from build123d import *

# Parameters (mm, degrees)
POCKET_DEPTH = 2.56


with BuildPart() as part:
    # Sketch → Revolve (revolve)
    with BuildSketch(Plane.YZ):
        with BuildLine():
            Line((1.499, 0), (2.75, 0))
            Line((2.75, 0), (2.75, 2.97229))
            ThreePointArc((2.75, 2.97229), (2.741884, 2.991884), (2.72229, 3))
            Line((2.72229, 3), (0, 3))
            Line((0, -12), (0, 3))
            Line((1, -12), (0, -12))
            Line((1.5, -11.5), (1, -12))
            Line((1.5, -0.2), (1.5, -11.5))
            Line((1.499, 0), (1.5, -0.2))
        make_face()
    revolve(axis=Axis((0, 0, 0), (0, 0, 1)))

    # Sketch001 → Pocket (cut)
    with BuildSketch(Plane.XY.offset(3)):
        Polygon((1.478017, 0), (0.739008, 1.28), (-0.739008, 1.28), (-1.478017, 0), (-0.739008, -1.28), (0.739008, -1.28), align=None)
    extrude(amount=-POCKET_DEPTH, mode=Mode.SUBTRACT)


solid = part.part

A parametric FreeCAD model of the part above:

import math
import FreeCAD as App
import Part
import Sketcher
Q = App.Units.Quantity

doc = App.newDocument("Part")
params = doc.addObject("Spreadsheet::Sheet", "Params")
for row, (alias, value) in enumerate([
    ("sketch1_width", "1 mm"),
    ("sketch1_height", "15 mm"),
    ("sketch1_height2", "11.3 mm"),
    ("revolution_angle", "360 deg"),
    ("pocket1_length", "2.56 mm"),
], start=1):
    params.set(f"A{row}", alias)
    params.set(f"B{row}", "=" + value)
    params.setAlias(f"B{row}", alias)

body = doc.addObject("PartDesign::Body", "Body")

sketch1 = body.newObject("Sketcher::SketchObject", "Sketch")
sketch1.AttachmentSupport = (doc.getObject("YZ_Plane"), [""])
sketch1.MapMode = "FlatFace"
sketch1.addGeometry(Part.LineSegment(App.Vector(1.499, 0, 0), App.Vector(2.75, 0, 0)), False)
sketch1.addGeometry(Part.LineSegment(App.Vector(2.75, 0, 0), App.Vector(2.75, 2.972, 0)), False)
sketch1.addGeometry(Part.ArcOfCircle(Part.Circle(App.Vector(2.722, 2.972, 0), App.Vector(0, 0, 1), 0.028), math.radians(0), math.radians(90)), False)
sketch1.addGeometry(Part.LineSegment(App.Vector(2.722, 3, 0), App.Vector(0, 3, 0)), False)
sketch1.addGeometry(Part.LineSegment(App.Vector(0, 3, 0), App.Vector(0, -12, 0)), False)
sketch1.addGeometry(Part.LineSegment(App.Vector(0, -12, 0), App.Vector(1, -12, 0)), False)
sketch1.addGeometry(Part.LineSegment(App.Vector(1, -12, 0), App.Vector(1.5, -11.5, 0)), False)
sketch1.addGeometry(Part.LineSegment(App.Vector(1.5, -11.5, 0), App.Vector(1.5, -0.2, 0)), False)
sketch1.addGeometry(Part.LineSegment(App.Vector(1.5, -0.2, 0), App.Vector(1.499, 0, 0)), False)
sketch1.addConstraint(Sketcher.Constraint("Coincident", 0, 2, 1, 1))
sketch1.addConstraint(Sketcher.Constraint("Coincident", 1, 2, 2, 1))
sketch1.addConstraint(Sketcher.Constraint("Coincident", 2, 2, 3, 1))
sketch1.addConstraint(Sketcher.Constraint("Coincident", 3, 2, 4, 1))
sketch1.addConstraint(Sketcher.Constraint("Coincident", 4, 2, 5, 1))
sketch1.addConstraint(Sketcher.Constraint("Coincident", 5, 2, 6, 1))
sketch1.addConstraint(Sketcher.Constraint("Coincident", 6, 2, 7, 1))
sketch1.addConstraint(Sketcher.Constraint("Coincident", 7, 2, 8, 1))
sketch1.addConstraint(Sketcher.Constraint("Coincident", 8, 2, 0, 1))
sketch1.addConstraint(Sketcher.Constraint("Horizontal", 0))
sketch1.addConstraint(Sketcher.Constraint("Vertical", 1))
sketch1.addConstraint(Sketcher.Constraint("Horizontal", 3))
sketch1.addConstraint(Sketcher.Constraint("Vertical", 4))
sketch1.addConstraint(Sketcher.Constraint("Horizontal", 5))
sketch1.addConstraint(Sketcher.Constraint("Vertical", 7))
sketch1.addConstraint(Sketcher.Constraint("PointOnObject", 0, 2, -1))
sketch1.addConstraint(Sketcher.Constraint("PointOnObject", 3, 2, -2))
sketch1.addConstraint(Sketcher.Constraint("Horizontal", 2, 3, 1, 2))
sketch1.addConstraint(Sketcher.Constraint("DistanceX", 5, 1, 5, 2, 1.0))
sketch1.addConstraint(Sketcher.Constraint("DistanceY", 4, 2, 4, 1, 15.0))
sketch1.addConstraint(Sketcher.Constraint("Angle", 6, Q("45 deg")))
sketch1.addConstraint(Sketcher.Constraint("DistanceY", 7, 1, 7, 2, 11.3))
sketch1.addConstraint(Sketcher.Constraint("DistanceY", -1, 1, 2, 2, 3.0))
sketch1.addConstraint(Sketcher.Constraint("DistanceX", -1, 1, 6, 2, 1.5))
sketch1.addConstraint(Sketcher.Constraint("DistanceX", 0, 1, 0, 2, 1.251))
sketch1.addConstraint(Sketcher.Constraint("DistanceX", -1, 1, 0, 2, 2.75))
sketch1.addConstraint(Sketcher.Constraint("Radius", 2, 0.02771))
sketch1.addConstraint(Sketcher.Constraint("DistanceX", 3, 2, 3, 1, 2.72229))
sketch1.setExpression("Constraints[18]", "Params.sketch1_width")
sketch1.setExpression("Constraints[19]", "Params.sketch1_height")
sketch1.setExpression("Constraints[21]", "Params.sketch1_height2")
revolution = body.newObject("PartDesign::Revolution", "Revolution")
revolution.Profile = sketch1
revolution.ReferenceAxis = (sketch1, ["V_Axis"])
revolution.setExpression("Angle", "Params.revolution_angle")

sketch2 = body.newObject("Sketcher::SketchObject", "Sketch001")
sketch2.AttachmentSupport = (doc.getObject("XY_Plane"), [""])
sketch2.MapMode = "FlatFace"
sketch2.AttachmentOffset = App.Placement(App.Vector(0, 0, 3), App.Rotation())
sketch2.addGeometry(Part.LineSegment(App.Vector(1.5, 0, 0), App.Vector(0.7, 1.3, 0)), False)
sketch2.addGeometry(Part.LineSegment(App.Vector(0.7, 1.3, 0), App.Vector(-0.7, 1.3, 0)), False)
sketch2.addGeometry(Part.LineSegment(App.Vector(-0.7, 1.3, 0), App.Vector(-1.5, 0, 0)), False)
sketch2.addGeometry(Part.LineSegment(App.Vector(-1.5, 0, 0), App.Vector(-0.7, -1.3, 0)), False)
sketch2.addGeometry(Part.LineSegment(App.Vector(-0.7, -1.3, 0), App.Vector(0.7, -1.3, 0)), False)
sketch2.addGeometry(Part.LineSegment(App.Vector(0.7, -1.3, 0), App.Vector(1.5, 0, 0)), False)
sketch2.addConstraint(Sketcher.Constraint("Coincident", 0, 2, 1, 1))
sketch2.addConstraint(Sketcher.Constraint("Coincident", 1, 2, 2, 1))
sketch2.addConstraint(Sketcher.Constraint("Coincident", 2, 2, 3, 1))
sketch2.addConstraint(Sketcher.Constraint("Coincident", 3, 2, 4, 1))
sketch2.addConstraint(Sketcher.Constraint("Coincident", 4, 2, 5, 1))
sketch2.addConstraint(Sketcher.Constraint("Coincident", 5, 2, 0, 1))
sketch2.addConstraint(Sketcher.Constraint("Horizontal", 1))
sketch2.addConstraint(Sketcher.Constraint("Horizontal", 4))
sketch2.addConstraint(Sketcher.Constraint("Symmetric", 0, 2, 3, 2, -1, 1))
sketch2.addConstraint(Sketcher.Constraint("Symmetric", 2, 2, 5, 2, -1, 1))
sketch2.addConstraint(Sketcher.Constraint("PointOnObject", 2, 2, -1))
sketch2.addConstraint(Sketcher.Constraint("Parallel", 2, 5))
sketch2.addConstraint(Sketcher.Constraint("Vertical", 1, 2, 3, 2))
sketch2.addConstraint(Sketcher.Constraint("DistanceY", -1, 1, 0, 2, 1.28))
sketch2.addConstraint(Sketcher.Constraint("DistanceX", 1, 2, 1, 1, 1.478016))
sketch2.addConstraint(Sketcher.Constraint("DistanceX", 2, 2, 1, 2, 0.739009))
pocket1 = body.newObject("PartDesign::Pocket", "Pocket")
pocket1.Profile = sketch2
pocket1.setExpression("Length", "Params.pocket1_length")

doc.recompute()
